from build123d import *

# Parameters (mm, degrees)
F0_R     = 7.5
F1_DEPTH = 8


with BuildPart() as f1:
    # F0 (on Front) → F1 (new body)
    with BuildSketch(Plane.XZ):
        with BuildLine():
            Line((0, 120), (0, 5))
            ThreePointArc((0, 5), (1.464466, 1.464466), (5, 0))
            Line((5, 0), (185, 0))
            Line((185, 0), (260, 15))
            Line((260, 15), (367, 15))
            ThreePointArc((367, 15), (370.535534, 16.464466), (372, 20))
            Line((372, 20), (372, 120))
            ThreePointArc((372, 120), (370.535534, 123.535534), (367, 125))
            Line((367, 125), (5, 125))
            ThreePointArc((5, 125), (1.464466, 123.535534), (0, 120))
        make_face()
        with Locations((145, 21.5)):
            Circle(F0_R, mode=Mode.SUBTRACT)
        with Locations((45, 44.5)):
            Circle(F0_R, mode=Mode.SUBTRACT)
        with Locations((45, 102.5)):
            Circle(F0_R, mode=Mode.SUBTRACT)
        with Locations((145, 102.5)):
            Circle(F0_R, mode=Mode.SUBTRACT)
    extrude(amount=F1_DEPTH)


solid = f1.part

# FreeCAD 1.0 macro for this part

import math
import FreeCAD as App
import Part
import Sketcher
Q = App.Units.Quantity

doc = App.newDocument("Part")
body = doc.addObject("PartDesign::Body", "Body")

# Sketch on XZ plane
sketch1 = body.newObject("Sketcher::SketchObject", "Sketch")
sketch1.AttachmentSupport = (doc.getObject("XZ_Plane"), [""])
sketch1.MapMode = "FlatFace"
sketch1.addGeometry([
    Part.LineSegment(App.Vector(0, 120, 0), App.Vector(0, 5, 0)),  # 0
    Part.ArcOfCircle(Part.Circle(App.Vector(5, 5, 0), App.Vector(0, 0, 1), 5), math.radians(180), math.radians(270)),  # 1
    Part.LineSegment(App.Vector(5, 0, 0), App.Vector(185, 0, 0)),  # 2
    Part.LineSegment(App.Vector(185, 0, 0), App.Vector(260, 15, 0)),  # 3
    Part.LineSegment(App.Vector(260, 15, 0), App.Vector(367, 15, 0)),  # 4
    Part.ArcOfCircle(Part.Circle(App.Vector(367, 20, 0), App.Vector(0, 0, 1), 5), math.radians(-90), math.radians(0)),  # 5
    Part.LineSegment(App.Vector(372, 20, 0), App.Vector(372, 120, 0)),  # 6
    Part.ArcOfCircle(Part.Circle(App.Vector(367, 120, 0), App.Vector(0, 0, 1), 5), math.radians(0), math.radians(90)),  # 7
    Part.LineSegment(App.Vector(367, 125, 0), App.Vector(5, 125, 0)),  # 8
    Part.ArcOfCircle(Part.Circle(App.Vector(5, 120, 0), App.Vector(0, 0, 1), 5), math.radians(90), math.radians(180)),  # 9
    Part.Circle(App.Vector(45, 44.5, 0), App.Vector(0, 0, 1), 7.5),  # 10
    Part.Circle(App.Vector(145, 21.5, 0), App.Vector(0, 0, 1), 7.5),  # 11
    Part.Circle(App.Vector(45, 102.5, 0), App.Vector(0, 0, 1), 7.5),  # 12
    Part.Circle(App.Vector(145, 102.5, 0), App.Vector(0, 0, 1), 7.5),  # 13
], False)
sketch1.addConstraint([
    Sketcher.Constraint("Tangent", 0, 2, 1, 1),
    Sketcher.Constraint("Tangent", 1, 2, 2, 1),
    Sketcher.Constraint("Coincident", 2, 2, 3, 1),
    Sketcher.Constraint("Coincident", 3, 2, 4, 1),
    Sketcher.Constraint("Tangent", 4, 2, 5, 1),
    Sketcher.Constraint("Tangent", 5, 2, 6, 1),
    Sketcher.Constraint("Tangent", 6, 2, 7, 1),
    Sketcher.Constraint("Tangent", 7, 2, 8, 1),
    Sketcher.Constraint("Tangent", 8, 2, 9, 1),
    Sketcher.Constraint("Tangent", 9, 2, 0, 1),
    Sketcher.Constraint("Vertical", 0),
    Sketcher.Constraint("Horizontal", 2),
    Sketcher.Constraint("Horizontal", 4),
    Sketcher.Constraint("Vertical", 6),
    Sketcher.Constraint("Horizontal", 8),
    Sketcher.Constraint("Equal", 1, 5),
    Sketcher.Constraint("Equal", 5, 7),
    Sketcher.Constraint("Equal", 7, 9),
    Sketcher.Constraint("Equal", 10, 11),
    Sketcher.Constraint("Equal", 11, 12),
    Sketcher.Constraint("Equal", 12, 13),
    Sketcher.Constraint("PointOnObject", 0, 2, -2),
    Sketcher.Constraint("PointOnObject", 1, 2, -1),
    Sketcher.Constraint("Horizontal", 12, 3, 13, 3),
    Sketcher.Constraint("Vertical", 10, 3, 12, 3),
    Sketcher.Constraint("Vertical", 11, 3, 13, 3),
    Sketcher.Constraint("Diameter", 10, Q("15 mm")),
    Sketcher.Constraint("Radius", 1, Q("5 mm")),
    Sketcher.Constraint("DistanceX", 2, 1, 2, 2, Q("180 mm")),
    Sketcher.Constraint("DistanceX", 4, 1, 4, 2, Q("107 mm")),
    Sketcher.Constraint("DistanceX", 8, 2, 8, 1, Q("362 mm")),
    Sketcher.Constraint("DistanceY", 0, 2, 0, 1, Q("115 mm")),
    Sketcher.Constraint("DistanceY", 6, 1, 6, 2, Q("100 mm")),
    Sketcher.Constraint("DistanceX", -1, 1, 10, 3, Q("45 mm")),
    Sketcher.Constraint("DistanceX", -1, 1, 11, 3, Q("145 mm")),
    Sketcher.Constraint("DistanceY", 11, 3, 10, 3, Q("23 mm")),
    Sketcher.Constraint("DistanceY", 10, 3, 12, 3, Q("58 mm")),
    Sketcher.Constraint("DistanceY", -1, 1, 10, 3, Q("44.5 mm")),
])
pad1 = body.newObject("PartDesign::Pad", "Pad")
pad1.Profile = sketch1
pad1.Length = 8

doc.recompute()
